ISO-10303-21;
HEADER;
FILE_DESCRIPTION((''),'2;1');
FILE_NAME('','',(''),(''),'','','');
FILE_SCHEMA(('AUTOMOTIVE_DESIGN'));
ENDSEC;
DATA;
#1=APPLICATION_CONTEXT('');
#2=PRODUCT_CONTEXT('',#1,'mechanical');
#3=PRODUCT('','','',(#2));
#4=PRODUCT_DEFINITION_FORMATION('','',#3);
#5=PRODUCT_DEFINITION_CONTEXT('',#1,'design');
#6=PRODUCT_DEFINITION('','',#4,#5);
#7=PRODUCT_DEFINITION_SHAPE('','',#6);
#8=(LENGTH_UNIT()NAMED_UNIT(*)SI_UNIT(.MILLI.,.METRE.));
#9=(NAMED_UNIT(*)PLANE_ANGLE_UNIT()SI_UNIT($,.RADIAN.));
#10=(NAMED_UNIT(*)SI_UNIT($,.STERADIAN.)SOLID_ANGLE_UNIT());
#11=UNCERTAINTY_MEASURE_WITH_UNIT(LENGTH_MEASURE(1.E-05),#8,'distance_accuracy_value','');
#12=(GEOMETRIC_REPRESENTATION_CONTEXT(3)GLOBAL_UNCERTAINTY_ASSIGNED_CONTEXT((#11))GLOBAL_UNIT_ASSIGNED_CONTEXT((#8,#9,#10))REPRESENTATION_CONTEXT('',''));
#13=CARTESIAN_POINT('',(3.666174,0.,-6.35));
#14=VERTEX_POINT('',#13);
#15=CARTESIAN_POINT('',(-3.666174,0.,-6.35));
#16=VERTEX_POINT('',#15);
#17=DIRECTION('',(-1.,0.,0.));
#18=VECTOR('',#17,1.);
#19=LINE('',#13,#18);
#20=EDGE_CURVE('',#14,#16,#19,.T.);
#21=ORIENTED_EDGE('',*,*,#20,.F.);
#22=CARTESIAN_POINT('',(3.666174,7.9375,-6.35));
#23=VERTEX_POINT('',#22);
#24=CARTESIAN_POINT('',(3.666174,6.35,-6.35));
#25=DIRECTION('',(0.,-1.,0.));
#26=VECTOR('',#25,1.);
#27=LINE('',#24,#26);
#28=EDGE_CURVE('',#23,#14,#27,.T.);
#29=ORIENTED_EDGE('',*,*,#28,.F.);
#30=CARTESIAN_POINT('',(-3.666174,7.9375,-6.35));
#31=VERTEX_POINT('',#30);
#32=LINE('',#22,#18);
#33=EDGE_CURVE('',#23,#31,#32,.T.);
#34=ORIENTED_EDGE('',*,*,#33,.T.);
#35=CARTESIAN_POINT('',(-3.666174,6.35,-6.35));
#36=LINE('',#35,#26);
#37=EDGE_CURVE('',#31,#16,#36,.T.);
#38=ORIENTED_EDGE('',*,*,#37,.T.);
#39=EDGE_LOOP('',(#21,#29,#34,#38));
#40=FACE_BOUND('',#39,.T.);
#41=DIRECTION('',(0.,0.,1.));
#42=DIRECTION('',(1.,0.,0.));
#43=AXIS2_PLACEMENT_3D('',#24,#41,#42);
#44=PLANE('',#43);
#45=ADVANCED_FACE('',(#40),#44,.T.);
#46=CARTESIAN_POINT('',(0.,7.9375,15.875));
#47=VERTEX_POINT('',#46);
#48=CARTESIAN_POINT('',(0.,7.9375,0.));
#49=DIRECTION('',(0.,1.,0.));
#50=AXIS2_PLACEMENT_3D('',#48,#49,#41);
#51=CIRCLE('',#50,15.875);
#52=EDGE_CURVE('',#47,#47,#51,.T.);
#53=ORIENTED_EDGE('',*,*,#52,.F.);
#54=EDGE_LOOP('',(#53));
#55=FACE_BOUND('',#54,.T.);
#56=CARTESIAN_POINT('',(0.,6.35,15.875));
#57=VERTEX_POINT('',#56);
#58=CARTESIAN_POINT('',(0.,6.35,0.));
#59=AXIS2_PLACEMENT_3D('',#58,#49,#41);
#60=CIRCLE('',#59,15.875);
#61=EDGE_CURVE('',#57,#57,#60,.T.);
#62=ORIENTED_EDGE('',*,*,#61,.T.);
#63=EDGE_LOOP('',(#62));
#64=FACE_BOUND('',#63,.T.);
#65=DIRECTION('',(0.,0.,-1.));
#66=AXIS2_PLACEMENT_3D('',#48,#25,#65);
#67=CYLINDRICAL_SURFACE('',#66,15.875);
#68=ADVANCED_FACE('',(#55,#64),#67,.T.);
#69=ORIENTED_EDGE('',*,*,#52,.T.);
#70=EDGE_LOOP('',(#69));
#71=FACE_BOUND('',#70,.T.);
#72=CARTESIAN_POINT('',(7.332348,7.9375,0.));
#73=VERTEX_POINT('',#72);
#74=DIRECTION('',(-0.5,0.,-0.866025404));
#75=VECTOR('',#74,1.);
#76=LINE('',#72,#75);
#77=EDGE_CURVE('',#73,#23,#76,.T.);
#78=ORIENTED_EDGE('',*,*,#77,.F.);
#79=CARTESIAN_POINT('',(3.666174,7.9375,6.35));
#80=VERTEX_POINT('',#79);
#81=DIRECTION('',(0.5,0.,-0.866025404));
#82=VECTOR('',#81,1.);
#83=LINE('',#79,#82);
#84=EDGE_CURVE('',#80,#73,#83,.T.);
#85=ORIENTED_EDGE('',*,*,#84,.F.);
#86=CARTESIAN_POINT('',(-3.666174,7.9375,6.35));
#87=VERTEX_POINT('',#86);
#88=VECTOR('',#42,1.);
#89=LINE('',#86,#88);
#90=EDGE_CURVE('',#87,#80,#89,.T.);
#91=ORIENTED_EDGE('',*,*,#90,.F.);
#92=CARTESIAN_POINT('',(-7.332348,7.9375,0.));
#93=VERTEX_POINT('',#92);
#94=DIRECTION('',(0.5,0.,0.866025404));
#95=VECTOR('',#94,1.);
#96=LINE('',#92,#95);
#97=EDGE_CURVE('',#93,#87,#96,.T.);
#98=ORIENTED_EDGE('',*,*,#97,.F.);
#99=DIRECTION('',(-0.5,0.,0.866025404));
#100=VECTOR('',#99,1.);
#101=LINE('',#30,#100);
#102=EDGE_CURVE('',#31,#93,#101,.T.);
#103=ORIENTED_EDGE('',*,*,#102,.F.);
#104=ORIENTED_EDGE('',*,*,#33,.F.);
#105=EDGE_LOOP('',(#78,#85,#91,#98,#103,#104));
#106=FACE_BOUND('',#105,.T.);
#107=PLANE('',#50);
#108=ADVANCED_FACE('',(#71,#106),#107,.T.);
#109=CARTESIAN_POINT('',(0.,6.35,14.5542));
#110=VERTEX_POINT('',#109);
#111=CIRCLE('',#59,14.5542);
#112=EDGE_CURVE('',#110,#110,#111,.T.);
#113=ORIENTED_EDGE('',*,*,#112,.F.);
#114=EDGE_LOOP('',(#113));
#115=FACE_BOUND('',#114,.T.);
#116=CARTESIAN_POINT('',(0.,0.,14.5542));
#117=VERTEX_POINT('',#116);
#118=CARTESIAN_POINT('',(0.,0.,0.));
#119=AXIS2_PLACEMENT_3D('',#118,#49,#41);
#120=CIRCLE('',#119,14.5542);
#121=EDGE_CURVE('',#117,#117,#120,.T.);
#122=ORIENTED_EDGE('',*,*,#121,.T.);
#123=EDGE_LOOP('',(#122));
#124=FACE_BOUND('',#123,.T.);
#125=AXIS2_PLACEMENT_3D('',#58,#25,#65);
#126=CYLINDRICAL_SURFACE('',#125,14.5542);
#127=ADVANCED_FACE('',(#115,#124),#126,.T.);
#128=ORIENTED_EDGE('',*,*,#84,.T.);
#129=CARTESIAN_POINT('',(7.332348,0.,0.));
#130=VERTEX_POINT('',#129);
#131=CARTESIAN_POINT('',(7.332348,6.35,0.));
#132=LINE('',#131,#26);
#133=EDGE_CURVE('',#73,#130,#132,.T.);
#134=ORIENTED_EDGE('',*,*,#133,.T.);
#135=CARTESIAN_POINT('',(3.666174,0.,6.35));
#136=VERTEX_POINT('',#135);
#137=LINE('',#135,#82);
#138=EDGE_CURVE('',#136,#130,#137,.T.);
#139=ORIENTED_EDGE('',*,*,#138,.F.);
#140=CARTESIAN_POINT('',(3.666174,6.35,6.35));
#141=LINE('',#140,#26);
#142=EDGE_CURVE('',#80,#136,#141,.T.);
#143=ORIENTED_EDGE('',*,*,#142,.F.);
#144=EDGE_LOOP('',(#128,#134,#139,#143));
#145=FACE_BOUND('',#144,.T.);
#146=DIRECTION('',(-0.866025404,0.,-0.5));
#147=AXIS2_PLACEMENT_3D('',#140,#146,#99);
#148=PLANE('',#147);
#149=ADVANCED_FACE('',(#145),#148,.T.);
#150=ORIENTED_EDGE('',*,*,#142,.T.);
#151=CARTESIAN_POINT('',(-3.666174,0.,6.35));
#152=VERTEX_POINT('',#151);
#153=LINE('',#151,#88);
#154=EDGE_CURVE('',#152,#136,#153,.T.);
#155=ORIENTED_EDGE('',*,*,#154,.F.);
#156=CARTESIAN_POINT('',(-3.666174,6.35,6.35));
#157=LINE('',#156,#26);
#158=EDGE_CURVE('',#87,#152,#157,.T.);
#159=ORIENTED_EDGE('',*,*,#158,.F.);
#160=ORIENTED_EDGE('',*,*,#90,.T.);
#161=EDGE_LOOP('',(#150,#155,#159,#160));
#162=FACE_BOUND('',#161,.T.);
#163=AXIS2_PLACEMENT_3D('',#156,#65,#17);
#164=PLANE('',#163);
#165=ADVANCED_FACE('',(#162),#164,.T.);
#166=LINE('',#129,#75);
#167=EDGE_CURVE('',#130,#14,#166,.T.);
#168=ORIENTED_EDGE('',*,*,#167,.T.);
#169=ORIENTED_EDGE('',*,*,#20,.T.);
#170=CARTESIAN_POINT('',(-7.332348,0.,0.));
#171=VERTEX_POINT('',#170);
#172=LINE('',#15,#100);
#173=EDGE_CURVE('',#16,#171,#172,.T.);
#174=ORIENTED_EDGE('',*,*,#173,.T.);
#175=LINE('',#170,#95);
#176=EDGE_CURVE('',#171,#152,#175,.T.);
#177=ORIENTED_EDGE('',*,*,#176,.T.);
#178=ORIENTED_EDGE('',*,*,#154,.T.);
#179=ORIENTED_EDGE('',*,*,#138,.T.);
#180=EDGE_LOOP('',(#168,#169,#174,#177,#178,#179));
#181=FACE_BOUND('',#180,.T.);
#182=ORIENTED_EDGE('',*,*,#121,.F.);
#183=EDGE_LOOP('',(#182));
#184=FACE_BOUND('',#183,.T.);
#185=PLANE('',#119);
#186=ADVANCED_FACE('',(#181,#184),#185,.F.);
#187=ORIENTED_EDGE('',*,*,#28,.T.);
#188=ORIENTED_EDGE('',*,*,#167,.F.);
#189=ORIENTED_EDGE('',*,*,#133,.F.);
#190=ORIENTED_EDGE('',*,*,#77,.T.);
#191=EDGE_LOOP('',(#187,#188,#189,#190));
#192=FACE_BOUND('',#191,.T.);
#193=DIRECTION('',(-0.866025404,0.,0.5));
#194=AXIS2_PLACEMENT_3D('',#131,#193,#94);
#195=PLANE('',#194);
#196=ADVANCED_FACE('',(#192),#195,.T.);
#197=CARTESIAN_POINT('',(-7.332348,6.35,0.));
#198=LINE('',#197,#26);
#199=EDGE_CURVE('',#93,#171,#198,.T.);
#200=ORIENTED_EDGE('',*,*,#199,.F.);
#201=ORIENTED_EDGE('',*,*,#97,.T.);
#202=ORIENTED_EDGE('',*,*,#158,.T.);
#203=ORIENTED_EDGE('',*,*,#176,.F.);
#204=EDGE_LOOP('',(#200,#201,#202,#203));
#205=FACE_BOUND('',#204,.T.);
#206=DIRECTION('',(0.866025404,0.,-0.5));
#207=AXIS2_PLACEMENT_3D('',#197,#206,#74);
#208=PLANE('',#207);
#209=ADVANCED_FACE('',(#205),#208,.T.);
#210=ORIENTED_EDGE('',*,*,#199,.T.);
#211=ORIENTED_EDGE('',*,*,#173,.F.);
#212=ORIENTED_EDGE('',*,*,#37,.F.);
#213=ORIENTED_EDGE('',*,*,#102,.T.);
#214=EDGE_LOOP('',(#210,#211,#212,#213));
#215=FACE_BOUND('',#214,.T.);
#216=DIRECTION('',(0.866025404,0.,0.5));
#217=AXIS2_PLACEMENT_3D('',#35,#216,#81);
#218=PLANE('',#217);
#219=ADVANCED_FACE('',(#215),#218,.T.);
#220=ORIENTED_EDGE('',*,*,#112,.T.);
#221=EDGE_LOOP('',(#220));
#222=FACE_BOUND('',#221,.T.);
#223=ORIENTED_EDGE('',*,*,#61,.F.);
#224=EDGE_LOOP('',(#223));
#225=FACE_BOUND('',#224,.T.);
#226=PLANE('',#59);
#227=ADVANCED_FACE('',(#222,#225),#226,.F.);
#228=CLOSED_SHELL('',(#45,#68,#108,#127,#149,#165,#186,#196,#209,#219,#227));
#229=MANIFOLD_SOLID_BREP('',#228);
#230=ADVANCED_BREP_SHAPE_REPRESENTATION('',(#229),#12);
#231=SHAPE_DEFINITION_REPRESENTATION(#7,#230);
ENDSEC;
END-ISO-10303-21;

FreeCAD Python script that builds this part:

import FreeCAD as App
import Part
import Sketcher

V = App.Vector
Q = App.Units.Quantity


def add_polygon(sketch, points):
    """Adds a closed chain of lines whose ends are joined by coincident constraints."""
    first, n = sketch.GeometryCount, len(points)
    for a, b in zip(points, points[1:] + points[:1]):
        sketch.addGeometry(Part.LineSegment(App.Vector(*a, 0), App.Vector(*b, 0)), False)
    for i in range(n):
        sketch.addConstraint(Sketcher.Constraint("Coincident", first + i, 2, first + (i + 1) % n, 1))

doc = App.newDocument("Part")
params = doc.addObject("Spreadsheet::Sheet", "Params")
for row, (alias, value) in enumerate([
    ("sketch1_diameter", "1.146 in"),
    ("pad1_length", "0.25 in"),
    ("sketch2_diameter", "1.25 in"),
    ("pad2_length", "0.0625 in"),
], start=1):
    params.set(f"A{row}", alias)
    params.set(f"B{row}", "=" + value)
    params.setAlias(f"B{row}", alias)

body = doc.addObject("PartDesign::Body", "Body")

# Sketch on XZ plane
sketch1 = doc.addObject("Sketcher::SketchObject", "Sketch")
body.addObject(sketch1)
sketch1.AttachmentSupport = (doc.XZ_Plane, [""])
sketch1.MapMode = "FlatFace"
sketch1.addGeometry(Part.Circle(V(0, 0, 0), V(0, 0, 1), 15), False)  # 0
add_polygon(sketch1, [(-4, -6), (4, -6), (7, 0), (4, 6), (-4, 6), (-7, 0)])  # lines 1-6
sketch1.addConstraint(Sketcher.Constraint("Horizontal", 1))
sketch1.addConstraint(Sketcher.Constraint("Horizontal", 4))
sketch1.addConstraint(Sketcher.Constraint("Coincident", 0, 3, -1, 1))
sketch1.addConstraint(Sketcher.Constraint("Symmetric", 1, 2, 4, 2, -1, 1))
sketch1.addConstraint(Sketcher.Constraint("Symmetric", 2, 2, 5, 2, -1, 1))
sketch1.addConstraint(Sketcher.Constraint("PointOnObject", 2, 2, -1))
sketch1.addConstraint(Sketcher.Constraint("Parallel", 3, 6))
sketch1.addConstraint(Sketcher.Constraint("Vertical", 1, 2, 3, 2))
sketch1.addConstraint(Sketcher.Constraint("Diameter", 0, Q("1.146 in")))
sketch1.addConstraint(Sketcher.Constraint("Angle", 2, Q("60 deg")))
sketch1.addConstraint(Sketcher.Constraint("DistanceY", 1, 2, 3, 2, Q("0.5 in")))
sketch1.addConstraint(Sketcher.Constraint("DistanceX", 1, 1, 1, 2, Q("7.332348 mm")))
sketch1.setExpression("Constraints[14]", "Params.sketch1_diameter")
pad1 = doc.addObject("PartDesign::Pad", "Pad")
body.addObject(pad1)
pad1.Profile = sketch1
pad1.setExpression("Length", "Params.pad1_length")
pad1.Reversed = True

# Sketch on XZ plane
sketch2 = doc.addObject("Sketcher::SketchObject", "Sketch001")
body.addObject(sketch2)
sketch2.AttachmentSupport = (doc.XZ_Plane, [""])
sketch2.MapMode = "FlatFace"
sketch2.AttachmentOffset = App.Placement(V(0, 0, -0.25 * 25.4), App.Rotation())
sketch2.addGeometry(Part.Circle(V(0, 0, 0), V(0, 0, 1), 16), False)  # 0
add_polygon(sketch2, [(-4, -6), (4, -6), (7, 0), (4, 6), (-4, 6), (-7, 0)])  # lines 1-6
sketch2.addConstraint(Sketcher.Constraint("Horizontal", 1))
sketch2.addConstraint(Sketcher.Constraint("Horizontal", 4))
sketch2.addConstraint(Sketcher.Constraint("Coincident", 0, 3, -1, 1))
sketch2.addConstraint(Sketcher.Constraint("Symmetric", 1, 2, 4, 2, -1, 1))
sketch2.addConstraint(Sketcher.Constraint("Symmetric", 2, 2, 5, 2, -1, 1))
sketch2.addConstraint(Sketcher.Constraint("PointOnObject", 2, 2, -1))
sketch2.addConstraint(Sketcher.Constraint("Parallel", 3, 6))
sketch2.addConstraint(Sketcher.Constraint("Vertical", 1, 2, 3, 2))
sketch2.addConstraint(Sketcher.Constraint("Diameter", 0, Q("1.25 in")))
sketch2.addConstraint(Sketcher.Constraint("Angle", 2, Q("60 deg")))
sketch2.addConstraint(Sketcher.Constraint("DistanceY", 1, 2, 3, 2, Q("0.5 in")))
sketch2.addConstraint(Sketcher.Constraint("DistanceX", 1, 1, 1, 2, Q("7.332348 mm")))
sketch2.setExpression("Constraints[14]", "Params.sketch2_diameter")
pad2 = doc.addObject("PartDesign::Pad", "Pad001")
body.addObject(pad2)
pad2.Profile = sketch2
pad2.setExpression("Length", "Params.pad2_length")
pad2.Reversed = True

doc.recompute()
